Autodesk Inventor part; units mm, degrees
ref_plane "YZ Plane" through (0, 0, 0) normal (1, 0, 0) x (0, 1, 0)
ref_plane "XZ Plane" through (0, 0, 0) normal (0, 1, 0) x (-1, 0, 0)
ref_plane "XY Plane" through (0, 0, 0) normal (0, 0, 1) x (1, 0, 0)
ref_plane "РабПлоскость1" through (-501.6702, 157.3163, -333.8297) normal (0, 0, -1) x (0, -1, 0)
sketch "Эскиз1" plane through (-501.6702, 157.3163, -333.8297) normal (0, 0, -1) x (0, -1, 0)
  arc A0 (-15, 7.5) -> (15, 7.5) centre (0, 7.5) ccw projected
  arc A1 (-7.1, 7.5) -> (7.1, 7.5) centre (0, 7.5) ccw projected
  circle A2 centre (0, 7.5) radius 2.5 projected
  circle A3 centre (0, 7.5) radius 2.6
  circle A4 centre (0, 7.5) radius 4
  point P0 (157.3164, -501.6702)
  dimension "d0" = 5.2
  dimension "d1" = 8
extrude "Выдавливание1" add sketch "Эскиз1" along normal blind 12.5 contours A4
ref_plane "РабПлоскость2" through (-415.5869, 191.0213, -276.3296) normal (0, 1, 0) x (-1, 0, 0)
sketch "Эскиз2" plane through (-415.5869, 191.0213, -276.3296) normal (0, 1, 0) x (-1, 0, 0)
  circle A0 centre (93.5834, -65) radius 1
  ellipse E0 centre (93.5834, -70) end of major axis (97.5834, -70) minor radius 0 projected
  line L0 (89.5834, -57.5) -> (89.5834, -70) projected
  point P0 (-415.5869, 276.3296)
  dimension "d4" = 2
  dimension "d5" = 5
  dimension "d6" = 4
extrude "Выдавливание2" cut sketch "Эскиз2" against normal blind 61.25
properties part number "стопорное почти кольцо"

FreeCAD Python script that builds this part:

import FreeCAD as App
import Part
import Sketcher

V = App.Vector
Q = App.Units.Quantity

doc = App.newDocument("Part")
body = doc.addObject("PartDesign::Body", "Body")

# Sketch on XY plane
sketch1 = body.newObject("Sketcher::SketchObject", "Sketch")
sketch1.AttachmentSupport = (doc.getObject("XY_Plane"), [""])
sketch1.MapMode = "FlatFace"
sketch1.AttachmentOffset = App.Placement(V(0, 0, -333.8297), App.Rotation())
sketch1.addGeometry([
    Part.Circle(V(-509.1702, 157.3163, 0), V(0, 0, 1), 4),
    Part.Circle(V(-509.1702, 157.3163, 0), V(0, 0, 1), 2.6),
], False)
sketch1.addConstraint([
    Sketcher.Constraint("Coincident", 1, 3, 0, 3),
    Sketcher.Constraint("Diameter", 0, Q("8 mm")),
    Sketcher.Constraint("Diameter", 1, Q("5.2 mm")),
    Sketcher.Constraint("DistanceX", 0, 3, -1, 1, Q("509.1702 mm")),
    Sketcher.Constraint("DistanceY", -1, 1, 0, 3, Q("157.3163 mm")),
])
pad1 = body.newObject("PartDesign::Pad", "Pad")
pad1.Profile = sketch1
pad1.Length = 12.5
pad1.Reversed = True

# Sketch on XZ plane
sketch2 = body.newObject("Sketcher::SketchObject", "Sketch001")
sketch2.AttachmentSupport = (doc.getObject("XZ_Plane"), [""])
sketch2.MapMode = "FlatFace"
sketch2.AttachmentOffset = App.Placement(V(0, 0, -191.0213), App.Rotation())
sketch2.addGeometry(Part.Circle(V(-509.1703, -341.3296, 0), V(0, 0, 1), 1), False)
sketch2.addConstraint([
    Sketcher.Constraint("Diameter", 0, Q("2 mm")),
    Sketcher.Constraint("DistanceX", 0, 3, -1, 1, Q("509.1703 mm")),
    Sketcher.Constraint("DistanceY", 0, 3, -1, 1, Q("341.3296 mm")),
])
pocket1 = body.newObject("PartDesign::Pocket", "Pocket")
pocket1.Profile = sketch2
pocket1.Length = 61.25
pocket1.Reversed = True

doc.recompute()
